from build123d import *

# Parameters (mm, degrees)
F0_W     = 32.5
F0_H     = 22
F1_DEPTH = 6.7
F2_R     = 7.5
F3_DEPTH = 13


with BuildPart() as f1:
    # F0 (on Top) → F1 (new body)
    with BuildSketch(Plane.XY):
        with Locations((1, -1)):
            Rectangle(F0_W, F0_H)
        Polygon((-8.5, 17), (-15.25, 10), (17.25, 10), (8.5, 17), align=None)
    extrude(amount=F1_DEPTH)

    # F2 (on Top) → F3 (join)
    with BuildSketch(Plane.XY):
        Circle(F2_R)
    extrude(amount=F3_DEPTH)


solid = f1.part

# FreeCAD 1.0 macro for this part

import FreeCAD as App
import Part
import Sketcher


def add_polygon(sketch, points):
    """Adds a closed chain of lines whose ends are joined by coincident constraints."""
    first, n = sketch.GeometryCount, len(points)
    for a, b in zip(points, points[1:] + points[:1]):
        sketch.addGeometry(Part.LineSegment(App.Vector(*a, 0), App.Vector(*b, 0)), False)
    for i in range(n):
        sketch.addConstraint(Sketcher.Constraint("Coincident", first + i, 2, first + (i + 1) % n, 1))

doc = App.newDocument("Part")
params = doc.addObject("Spreadsheet::Sheet", "Params")
for row, (alias, value) in enumerate([
    ("sketch1_width", "17 mm"),
    ("sketch1_height", "22 mm"),
    ("sketch1_width2", "32.5 mm"),
    ("pad1_length", "6.7 mm"),
    ("sketch2_diameter", "15 mm"),
    ("pad2_length", "13 mm"),
], start=1):
    params.set(f"A{row}", alias)
    params.set(f"B{row}", "=" + value)
    params.setAlias(f"B{row}", alias)

body = doc.addObject("PartDesign::Body", "Body")

sketch1 = body.newObject("Sketcher::SketchObject", "Sketch")
sketch1.AttachmentSupport = (doc.getObject("XY_Plane"), [""])
sketch1.MapMode = "FlatFace"
add_polygon(sketch1, [(-15, 10), (-15, -12), (17, -12), (17, 10), (8, 17), (-8, 17)])
sketch1.addConstraint(Sketcher.Constraint("Vertical", 0))
sketch1.addConstraint(Sketcher.Constraint("Horizontal", 1))
sketch1.addConstraint(Sketcher.Constraint("Vertical", 2))
sketch1.addConstraint(Sketcher.Constraint("Horizontal", 4))
sketch1.addConstraint(Sketcher.Constraint("Horizontal", 2, 2, 5, 2))
sketch1.addConstraint(Sketcher.Constraint("DistanceX", 4, 2, 4, 1, 17.0))
sketch1.addConstraint(Sketcher.Constraint("DistanceY", 0, 2, 0, 1, 22.0))
sketch1.addConstraint(Sketcher.Constraint("DistanceX", 1, 1, 1, 2, 32.5))
sketch1.addConstraint(Sketcher.Constraint("DistanceY", 0, 2, -1, 1, 12.0))
sketch1.addConstraint(Sketcher.Constraint("DistanceY", -1, 1, 3, 2, 17.0))
sketch1.addConstraint(Sketcher.Constraint("DistanceX", -1, 1, 3, 2, 8.5))
sketch1.addConstraint(Sketcher.Constraint("DistanceX", 0, 2, -1, 1, 15.25))
sketch1.setExpression("Constraints[11]", "Params.sketch1_width")
sketch1.setExpression("Constraints[12]", "Params.sketch1_height")
sketch1.setExpression("Constraints[13]", "Params.sketch1_width2")
pad1 = body.newObject("PartDesign::Pad", "Pad")
pad1.Profile = sketch1
pad1.setExpression("Length", "Params.pad1_length")

sketch2 = body.newObject("Sketcher::SketchObject", "Sketch001")
sketch2.AttachmentSupport = (doc.getObject("XY_Plane"), [""])
sketch2.MapMode = "FlatFace"
sketch2.addGeometry(Part.Circle(App.Vector(0, 0, 0), App.Vector(0, 0, 1), 8), False)
sketch2.addConstraint(Sketcher.Constraint("Coincident", 0, 3, -1, 1))
sketch2.addConstraint(Sketcher.Constraint("Diameter", 0, 15.0))
sketch2.setExpression("Constraints[1]", "Params.sketch2_diameter")
pad2 = body.newObject("PartDesign::Pad", "Pad001")
pad2.Profile = sketch2
pad2.setExpression("Length", "Params.pad2_length")

doc.recompute()
